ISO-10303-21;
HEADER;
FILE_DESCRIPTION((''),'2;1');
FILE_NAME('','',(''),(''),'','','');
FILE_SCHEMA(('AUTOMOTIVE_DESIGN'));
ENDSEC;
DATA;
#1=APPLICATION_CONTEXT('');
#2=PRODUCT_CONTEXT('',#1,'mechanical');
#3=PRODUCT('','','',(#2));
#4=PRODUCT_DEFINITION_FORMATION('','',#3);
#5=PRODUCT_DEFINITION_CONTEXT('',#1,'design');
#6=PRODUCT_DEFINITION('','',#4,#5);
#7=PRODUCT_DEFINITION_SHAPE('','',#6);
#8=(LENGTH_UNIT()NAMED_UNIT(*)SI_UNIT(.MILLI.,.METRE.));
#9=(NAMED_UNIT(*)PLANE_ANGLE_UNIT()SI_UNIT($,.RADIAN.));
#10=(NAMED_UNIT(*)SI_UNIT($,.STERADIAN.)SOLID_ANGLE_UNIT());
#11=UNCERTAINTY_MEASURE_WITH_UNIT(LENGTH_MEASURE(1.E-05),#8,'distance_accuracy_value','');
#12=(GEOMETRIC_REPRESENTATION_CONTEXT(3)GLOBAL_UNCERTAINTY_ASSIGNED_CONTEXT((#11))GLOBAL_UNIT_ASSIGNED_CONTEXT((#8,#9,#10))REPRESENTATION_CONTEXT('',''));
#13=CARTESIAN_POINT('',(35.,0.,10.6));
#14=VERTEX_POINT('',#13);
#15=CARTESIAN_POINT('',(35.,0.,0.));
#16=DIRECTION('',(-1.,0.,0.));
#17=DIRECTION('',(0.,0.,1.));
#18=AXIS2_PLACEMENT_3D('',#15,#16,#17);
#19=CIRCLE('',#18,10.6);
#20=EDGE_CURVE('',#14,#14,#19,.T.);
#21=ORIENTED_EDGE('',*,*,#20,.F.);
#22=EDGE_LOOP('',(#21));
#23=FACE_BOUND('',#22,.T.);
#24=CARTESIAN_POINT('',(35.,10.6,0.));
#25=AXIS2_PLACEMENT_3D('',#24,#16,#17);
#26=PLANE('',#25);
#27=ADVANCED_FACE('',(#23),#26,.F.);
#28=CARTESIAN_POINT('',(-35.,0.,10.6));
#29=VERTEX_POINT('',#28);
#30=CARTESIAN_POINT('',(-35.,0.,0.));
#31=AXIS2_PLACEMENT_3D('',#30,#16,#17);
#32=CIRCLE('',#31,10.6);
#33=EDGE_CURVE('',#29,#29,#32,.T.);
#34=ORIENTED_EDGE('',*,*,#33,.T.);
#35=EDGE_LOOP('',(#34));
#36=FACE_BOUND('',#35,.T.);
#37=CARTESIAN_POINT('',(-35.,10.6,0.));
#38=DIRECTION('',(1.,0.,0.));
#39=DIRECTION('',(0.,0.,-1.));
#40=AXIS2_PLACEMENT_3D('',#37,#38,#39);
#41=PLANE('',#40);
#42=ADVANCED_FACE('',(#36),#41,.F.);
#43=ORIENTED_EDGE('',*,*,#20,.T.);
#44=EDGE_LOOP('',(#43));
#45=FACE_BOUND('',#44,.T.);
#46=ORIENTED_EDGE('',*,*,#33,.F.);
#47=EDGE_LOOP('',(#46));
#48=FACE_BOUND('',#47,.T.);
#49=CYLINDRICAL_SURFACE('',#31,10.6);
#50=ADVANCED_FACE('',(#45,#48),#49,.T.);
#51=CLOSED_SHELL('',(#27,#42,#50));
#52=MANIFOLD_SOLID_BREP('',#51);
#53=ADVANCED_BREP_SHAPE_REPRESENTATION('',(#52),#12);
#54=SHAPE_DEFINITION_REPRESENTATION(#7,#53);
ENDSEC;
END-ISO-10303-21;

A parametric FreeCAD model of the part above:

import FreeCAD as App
import Part
import Sketcher
Q = App.Units.Quantity

doc = App.newDocument("Part")
params = doc.addObject("Spreadsheet::Sheet", "Params")
for row, (alias, value) in enumerate([
    ("sketch1_width", "70 mm"),
    ("sketch1_height", "10.6 mm"),
    ("revolution_angle", "360 deg"),
], start=1):
    params.set(f"A{row}", alias)
    params.set(f"B{row}", "=" + value)
    params.setAlias(f"B{row}", alias)

body = doc.addObject("PartDesign::Body", "Body")

# Sketch on XY plane
sketch1 = body.newObject("Sketcher::SketchObject", "Sketch")
sketch1.AttachmentSupport = (doc.getObject("XY_Plane"), [""])
sketch1.MapMode = "FlatFace"
sketch1.addGeometry(Part.LineSegment(App.Vector(-35, 11, 0), App.Vector(-35, 0, 0)), False)
sketch1.addGeometry(Part.LineSegment(App.Vector(-35, 0, 0), App.Vector(35, 0, 0)), False)
sketch1.addGeometry(Part.LineSegment(App.Vector(35, 0, 0), App.Vector(35, 11, 0)), False)
sketch1.addGeometry(Part.LineSegment(App.Vector(35, 11, 0), App.Vector(-35, 11, 0)), False)
sketch1.addConstraint(Sketcher.Constraint("Coincident", 0, 2, 1, 1))
sketch1.addConstraint(Sketcher.Constraint("Coincident", 1, 2, 2, 1))
sketch1.addConstraint(Sketcher.Constraint("Coincident", 2, 2, 3, 1))
sketch1.addConstraint(Sketcher.Constraint("Coincident", 3, 2, 0, 1))
sketch1.addConstraint(Sketcher.Constraint("Vertical", 0))
sketch1.addConstraint(Sketcher.Constraint("Horizontal", 1))
sketch1.addConstraint(Sketcher.Constraint("Vertical", 2))
sketch1.addConstraint(Sketcher.Constraint("Horizontal", 3))
sketch1.addConstraint(Sketcher.Constraint("Symmetric", 0, 2, 1, 2, -1, 1))
sketch1.addConstraint(Sketcher.Constraint("DistanceX", 1, 1, 1, 2, Q("70 mm")))
sketch1.addConstraint(Sketcher.Constraint("DistanceY", 0, 2, 0, 1, Q("10.6 mm")))
sketch1.setExpression("Constraints[9]", "Params.sketch1_width")
sketch1.setExpression("Constraints[10]", "Params.sketch1_height")
revolution = body.newObject("PartDesign::Revolution", "Revolution")
revolution.Profile = sketch1
revolution.ReferenceAxis = (sketch1, ["H_Axis"])
revolution.setExpression("Angle", "Params.revolution_angle")

doc.recompute()
